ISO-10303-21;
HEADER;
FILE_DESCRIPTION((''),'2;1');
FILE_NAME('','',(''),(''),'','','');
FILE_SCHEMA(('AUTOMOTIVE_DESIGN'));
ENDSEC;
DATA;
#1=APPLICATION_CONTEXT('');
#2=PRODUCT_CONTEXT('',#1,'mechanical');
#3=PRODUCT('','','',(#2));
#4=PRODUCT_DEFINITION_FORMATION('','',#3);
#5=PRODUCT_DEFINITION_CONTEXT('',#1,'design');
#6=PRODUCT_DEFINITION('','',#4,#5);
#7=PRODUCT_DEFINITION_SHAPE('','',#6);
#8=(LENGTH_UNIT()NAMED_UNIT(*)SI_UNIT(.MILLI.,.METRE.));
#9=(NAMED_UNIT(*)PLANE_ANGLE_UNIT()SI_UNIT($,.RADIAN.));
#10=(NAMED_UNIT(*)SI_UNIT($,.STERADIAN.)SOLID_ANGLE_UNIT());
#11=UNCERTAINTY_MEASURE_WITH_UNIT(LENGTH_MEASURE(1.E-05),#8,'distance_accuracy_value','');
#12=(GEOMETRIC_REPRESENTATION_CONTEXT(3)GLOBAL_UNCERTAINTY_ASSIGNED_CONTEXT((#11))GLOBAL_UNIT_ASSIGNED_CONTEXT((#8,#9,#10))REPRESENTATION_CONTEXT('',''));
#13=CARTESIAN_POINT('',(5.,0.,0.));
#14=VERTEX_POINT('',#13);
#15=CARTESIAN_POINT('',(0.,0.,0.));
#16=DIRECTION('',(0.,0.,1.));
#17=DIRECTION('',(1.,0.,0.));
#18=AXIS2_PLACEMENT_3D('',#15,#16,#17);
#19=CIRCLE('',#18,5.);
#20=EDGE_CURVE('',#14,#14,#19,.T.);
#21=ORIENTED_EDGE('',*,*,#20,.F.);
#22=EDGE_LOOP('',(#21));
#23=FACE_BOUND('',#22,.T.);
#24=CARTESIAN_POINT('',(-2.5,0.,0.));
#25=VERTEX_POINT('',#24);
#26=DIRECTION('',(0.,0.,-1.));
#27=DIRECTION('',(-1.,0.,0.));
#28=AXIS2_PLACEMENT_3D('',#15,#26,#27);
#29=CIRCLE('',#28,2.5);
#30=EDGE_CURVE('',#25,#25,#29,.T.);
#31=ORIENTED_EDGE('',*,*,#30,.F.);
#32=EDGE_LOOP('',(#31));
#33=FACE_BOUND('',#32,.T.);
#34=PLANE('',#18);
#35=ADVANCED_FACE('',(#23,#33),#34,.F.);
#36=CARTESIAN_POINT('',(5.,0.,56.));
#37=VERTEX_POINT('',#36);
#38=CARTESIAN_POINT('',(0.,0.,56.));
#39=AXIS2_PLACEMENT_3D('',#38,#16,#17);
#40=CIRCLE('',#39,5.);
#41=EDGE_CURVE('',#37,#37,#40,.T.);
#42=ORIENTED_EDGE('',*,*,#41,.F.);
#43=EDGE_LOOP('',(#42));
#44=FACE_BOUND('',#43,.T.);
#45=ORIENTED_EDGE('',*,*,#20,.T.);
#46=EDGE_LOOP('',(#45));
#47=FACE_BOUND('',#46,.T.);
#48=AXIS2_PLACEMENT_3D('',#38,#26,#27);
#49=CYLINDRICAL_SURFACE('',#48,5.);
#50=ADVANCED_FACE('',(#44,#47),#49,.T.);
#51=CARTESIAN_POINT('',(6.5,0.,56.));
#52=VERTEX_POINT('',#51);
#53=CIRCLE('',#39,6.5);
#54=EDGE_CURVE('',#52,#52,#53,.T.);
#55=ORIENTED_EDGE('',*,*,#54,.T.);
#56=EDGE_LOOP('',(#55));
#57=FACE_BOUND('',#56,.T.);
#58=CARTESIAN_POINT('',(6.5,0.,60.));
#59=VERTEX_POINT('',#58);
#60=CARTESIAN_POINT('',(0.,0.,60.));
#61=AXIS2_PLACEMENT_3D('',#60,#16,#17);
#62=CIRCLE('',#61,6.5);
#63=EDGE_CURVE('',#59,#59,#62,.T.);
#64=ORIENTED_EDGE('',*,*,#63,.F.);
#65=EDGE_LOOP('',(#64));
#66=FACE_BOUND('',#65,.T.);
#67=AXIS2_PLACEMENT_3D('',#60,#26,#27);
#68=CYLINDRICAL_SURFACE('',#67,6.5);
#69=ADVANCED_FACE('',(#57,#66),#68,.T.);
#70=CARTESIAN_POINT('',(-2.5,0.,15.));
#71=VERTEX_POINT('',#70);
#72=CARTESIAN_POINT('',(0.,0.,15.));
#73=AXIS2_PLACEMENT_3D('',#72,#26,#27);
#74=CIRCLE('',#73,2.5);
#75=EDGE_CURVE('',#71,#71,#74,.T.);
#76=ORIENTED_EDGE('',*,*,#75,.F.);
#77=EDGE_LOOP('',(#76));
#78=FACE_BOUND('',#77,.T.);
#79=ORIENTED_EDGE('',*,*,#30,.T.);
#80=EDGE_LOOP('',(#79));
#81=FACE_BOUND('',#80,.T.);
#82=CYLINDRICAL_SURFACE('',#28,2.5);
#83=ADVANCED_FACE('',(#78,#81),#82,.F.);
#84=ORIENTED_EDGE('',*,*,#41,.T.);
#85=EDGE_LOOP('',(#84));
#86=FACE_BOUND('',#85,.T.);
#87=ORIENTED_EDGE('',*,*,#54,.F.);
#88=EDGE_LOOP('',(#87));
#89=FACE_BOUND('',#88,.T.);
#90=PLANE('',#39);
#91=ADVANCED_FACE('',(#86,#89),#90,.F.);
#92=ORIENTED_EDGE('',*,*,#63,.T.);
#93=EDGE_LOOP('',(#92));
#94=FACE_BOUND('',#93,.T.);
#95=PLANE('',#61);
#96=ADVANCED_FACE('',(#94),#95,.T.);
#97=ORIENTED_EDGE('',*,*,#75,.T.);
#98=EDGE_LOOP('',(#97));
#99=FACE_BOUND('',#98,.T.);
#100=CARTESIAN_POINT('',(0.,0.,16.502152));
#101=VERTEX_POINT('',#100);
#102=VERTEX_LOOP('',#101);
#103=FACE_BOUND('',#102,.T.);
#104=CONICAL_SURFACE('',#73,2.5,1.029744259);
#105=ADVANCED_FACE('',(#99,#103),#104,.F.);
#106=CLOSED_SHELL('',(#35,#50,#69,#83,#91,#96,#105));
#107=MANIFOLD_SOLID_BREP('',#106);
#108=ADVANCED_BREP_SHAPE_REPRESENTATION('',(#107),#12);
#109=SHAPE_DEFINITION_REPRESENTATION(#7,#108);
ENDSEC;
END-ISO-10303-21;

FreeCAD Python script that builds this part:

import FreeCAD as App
import Part
import Sketcher

V = App.Vector
Q = App.Units.Quantity

doc = App.newDocument("Part")
params = doc.addObject("Spreadsheet::Sheet", "Params")
for row, (alias, value) in enumerate([
    ("sketch1_diameter", "10 mm"),
    ("pad1_length", "56 mm"),
    ("sketch2_diameter", "13 mm"),
    ("pad2_length", "4 mm"),
    ("sketch3_diameter", "5 mm"),
    ("hole_diameter", "5 mm"),
    ("hole_depth", "15 mm"),
], start=1):
    params.set(f"A{row}", alias)
    params.set(f"B{row}", "=" + value)
    params.setAlias(f"B{row}", alias)

body = doc.addObject("PartDesign::Body", "Body")

sketch1 = doc.addObject("Sketcher::SketchObject", "Sketch")
body.addObject(sketch1)
sketch1.AttachmentSupport = (doc.XY_Plane, [""])
sketch1.MapMode = "FlatFace"
sketch1.addGeometry(Part.Circle(V(0, 0, 0), V(0, 0, 1), 5), False)
sketch1.addConstraint([
    Sketcher.Constraint("Coincident", 0, 3, -1, 1),
    Sketcher.Constraint("Diameter", 0, Q("10 mm")),
])
sketch1.setExpression("Constraints[1]", "Params.sketch1_diameter")
pad1 = doc.addObject("PartDesign::Pad", "Pad")
body.addObject(pad1)
pad1.Profile = sketch1
pad1.setExpression("Length", "Params.pad1_length")

sketch2 = doc.addObject("Sketcher::SketchObject", "Sketch001")
body.addObject(sketch2)
sketch2.AttachmentSupport = (doc.XY_Plane, [""])
sketch2.MapMode = "FlatFace"
sketch2.AttachmentOffset = App.Placement(V(0, 0, 56), App.Rotation())
sketch2.addGeometry(Part.Circle(V(0, 0, 0), V(0, 0, 1), 6), False)
sketch2.addConstraint([
    Sketcher.Constraint("Coincident", 0, 3, -1, 1),
    Sketcher.Constraint("Diameter", 0, Q("13 mm")),
])
sketch2.setExpression("Constraints[1]", "Params.sketch2_diameter")
pad2 = doc.addObject("PartDesign::Pad", "Pad001")
body.addObject(pad2)
pad2.Profile = sketch2
pad2.setExpression("Length", "Params.pad2_length")

sketch3 = doc.addObject("Sketcher::SketchObject", "Sketch002")
body.addObject(sketch3)
sketch3.AttachmentSupport = (doc.XY_Plane, [""])
sketch3.MapMode = "FlatFace"
sketch3.addGeometry(Part.Circle(V(0, 0, 0), V(0, 0, 1), 2.5), False)
sketch3.addConstraint([
    Sketcher.Constraint("Coincident", 0, 3, -1, 1),
    Sketcher.Constraint("Diameter", 0, Q("5 mm")),
])
sketch3.setExpression("Constraints[1]", "Params.sketch3_diameter")
doc.recompute()
hole = doc.addObject("PartDesign::Hole", "Hole")
body.addObject(hole)
hole.Profile = sketch3
hole.ThreadType = "None"
hole.setExpression("Diameter", "Params.hole_diameter")
hole.DepthType = "Dimension"
hole.setExpression("Depth", "Params.hole_depth")
hole.DrillPoint = "Angled"
hole.DrillPointAngle = 118
hole.Reversed = True

doc.recompute()
